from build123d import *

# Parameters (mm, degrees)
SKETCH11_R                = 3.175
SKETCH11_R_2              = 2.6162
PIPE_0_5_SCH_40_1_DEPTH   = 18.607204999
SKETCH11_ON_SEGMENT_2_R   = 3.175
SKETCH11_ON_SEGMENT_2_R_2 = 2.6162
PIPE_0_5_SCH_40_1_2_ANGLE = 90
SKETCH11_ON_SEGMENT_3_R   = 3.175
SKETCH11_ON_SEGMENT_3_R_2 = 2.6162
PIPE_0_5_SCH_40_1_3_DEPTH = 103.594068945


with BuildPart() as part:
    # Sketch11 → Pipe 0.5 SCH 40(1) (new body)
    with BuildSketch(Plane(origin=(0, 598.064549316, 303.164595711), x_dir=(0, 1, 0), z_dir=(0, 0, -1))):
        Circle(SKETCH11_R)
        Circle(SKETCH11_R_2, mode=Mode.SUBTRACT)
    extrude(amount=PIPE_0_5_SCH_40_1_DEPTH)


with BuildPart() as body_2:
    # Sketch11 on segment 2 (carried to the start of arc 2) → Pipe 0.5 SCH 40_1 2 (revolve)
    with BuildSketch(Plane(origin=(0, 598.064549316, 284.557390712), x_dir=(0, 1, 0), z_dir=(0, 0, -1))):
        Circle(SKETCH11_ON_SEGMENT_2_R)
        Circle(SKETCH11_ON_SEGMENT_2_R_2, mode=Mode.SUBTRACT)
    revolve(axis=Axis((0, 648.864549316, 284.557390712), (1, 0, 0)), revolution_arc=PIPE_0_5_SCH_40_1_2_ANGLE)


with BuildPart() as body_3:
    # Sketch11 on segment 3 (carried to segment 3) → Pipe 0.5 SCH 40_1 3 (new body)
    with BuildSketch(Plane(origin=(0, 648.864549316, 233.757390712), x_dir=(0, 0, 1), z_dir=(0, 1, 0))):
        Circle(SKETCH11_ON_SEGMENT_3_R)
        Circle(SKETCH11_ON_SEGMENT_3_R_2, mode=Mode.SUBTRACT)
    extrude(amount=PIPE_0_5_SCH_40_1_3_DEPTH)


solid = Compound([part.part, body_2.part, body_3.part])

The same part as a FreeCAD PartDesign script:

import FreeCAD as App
import Part
import Sketcher
from FreeCAD import Vector
Q = App.Units.Quantity

doc = App.newDocument("Part")
body = doc.addObject("PartDesign::Body", "Body")

# Sketch on XY plane
sketch1 = doc.addObject("Sketcher::SketchObject", "Sketch")
body.addObject(sketch1)
sketch1.AttachmentSupport = (doc.XY_Plane, [""])
sketch1.MapMode = "FlatFace"
sketch1.AttachmentOffset = App.Placement(Vector(0, 0, 303.164596), App.Rotation())
sketch1.addGeometry([
    Part.Circle(Vector(0, 598.1, 0), Vector(0, 0, 1), 3.2),
    Part.Circle(Vector(0, 598.1, 0), Vector(0, 0, 1), 2.6),
], False)
sketch1.addConstraint([
    Sketcher.Constraint("Coincident", 1, 3, 0, 3),
    Sketcher.Constraint("PointOnObject", 0, 3, -2),
    Sketcher.Constraint("Diameter", 0, Q("0.25 in")),
    Sketcher.Constraint("Diameter", 1, Q("0.206 in")),
    Sketcher.Constraint("DistanceY", -1, 1, 0, 3, Q("598.064549 mm")),
])
pad1 = doc.addObject("PartDesign::Pad", "Pad")
body.addObject(pad1)
pad1.Profile = sketch1
pad1.Length = 18.607205
pad1.Reversed = True
body2 = doc.addObject("PartDesign::Body", "Body001")

# Sketch on XY plane
sketch2 = doc.addObject("Sketcher::SketchObject", "Sketch001")
body2.addObject(sketch2)
sketch2.AttachmentSupport = (doc.getObject("XY_Plane001"), [""])
sketch2.MapMode = "FlatFace"
sketch2.AttachmentOffset = App.Placement(Vector(0, 0, 284.557391), App.Rotation())
sketch2.addGeometry([
    Part.Circle(Vector(0, 598.1, 0), Vector(0, 0, 1), 3.2),
    Part.Circle(Vector(0, 598.1, 0), Vector(0, 0, 1), 2.6),
], False)
sketch2.addGeometry(Part.LineSegment(Vector(0, 648.9, 0), Vector(10, 648.9, 0)), True)  # axis
sketch2.addConstraint([
    Sketcher.Constraint("Horizontal", 2),
    Sketcher.Constraint("Coincident", 1, 3, 0, 3),
    Sketcher.Constraint("PointOnObject", 0, 3, -2),
    Sketcher.Constraint("PointOnObject", 2, 1, -2),
    Sketcher.Constraint("Diameter", 0, Q("0.25 in")),
    Sketcher.Constraint("Diameter", 1, Q("0.206 in")),
    Sketcher.Constraint("DistanceY", 0, 3, 2, 1, Q("2 in")),
    Sketcher.Constraint("DistanceX", 2, 1, 2, 2, Q("10 mm")),
    Sketcher.Constraint("DistanceY", -1, 1, 0, 3, Q("598.064549 mm")),
])
revolution = doc.addObject("PartDesign::Revolution", "Revolution")
body2.addObject(revolution)
revolution.Profile = sketch2
revolution.ReferenceAxis = (sketch2, ["Axis0"])
revolution.Angle = 90
body3 = doc.addObject("PartDesign::Body", "Body002")

# Sketch on XZ plane
sketch3 = doc.addObject("Sketcher::SketchObject", "Sketch002")
body3.addObject(sketch3)
sketch3.AttachmentSupport = (doc.getObject("XZ_Plane002"), [""])
sketch3.MapMode = "FlatFace"
sketch3.AttachmentOffset = App.Placement(Vector(0, 0, -648.864549), App.Rotation())
sketch3.addGeometry([
    Part.Circle(Vector(0, 233.8, 0), Vector(0, 0, 1), 3.2),
    Part.Circle(Vector(0, 233.8, 0), Vector(0, 0, 1), 2.6),
], False)
sketch3.addConstraint([
    Sketcher.Constraint("Coincident", 1, 3, 0, 3),
    Sketcher.Constraint("PointOnObject", 0, 3, -2),
    Sketcher.Constraint("Diameter", 0, Q("0.25 in")),
    Sketcher.Constraint("Diameter", 1, Q("0.206 in")),
    Sketcher.Constraint("DistanceY", -1, 1, 0, 3, Q("233.757391 mm")),
])
pad2 = doc.addObject("PartDesign::Pad", "Pad001")
body3.addObject(pad2)
pad2.Profile = sketch3
pad2.Length = 103.594069
pad2.Reversed = True

doc.recompute()
